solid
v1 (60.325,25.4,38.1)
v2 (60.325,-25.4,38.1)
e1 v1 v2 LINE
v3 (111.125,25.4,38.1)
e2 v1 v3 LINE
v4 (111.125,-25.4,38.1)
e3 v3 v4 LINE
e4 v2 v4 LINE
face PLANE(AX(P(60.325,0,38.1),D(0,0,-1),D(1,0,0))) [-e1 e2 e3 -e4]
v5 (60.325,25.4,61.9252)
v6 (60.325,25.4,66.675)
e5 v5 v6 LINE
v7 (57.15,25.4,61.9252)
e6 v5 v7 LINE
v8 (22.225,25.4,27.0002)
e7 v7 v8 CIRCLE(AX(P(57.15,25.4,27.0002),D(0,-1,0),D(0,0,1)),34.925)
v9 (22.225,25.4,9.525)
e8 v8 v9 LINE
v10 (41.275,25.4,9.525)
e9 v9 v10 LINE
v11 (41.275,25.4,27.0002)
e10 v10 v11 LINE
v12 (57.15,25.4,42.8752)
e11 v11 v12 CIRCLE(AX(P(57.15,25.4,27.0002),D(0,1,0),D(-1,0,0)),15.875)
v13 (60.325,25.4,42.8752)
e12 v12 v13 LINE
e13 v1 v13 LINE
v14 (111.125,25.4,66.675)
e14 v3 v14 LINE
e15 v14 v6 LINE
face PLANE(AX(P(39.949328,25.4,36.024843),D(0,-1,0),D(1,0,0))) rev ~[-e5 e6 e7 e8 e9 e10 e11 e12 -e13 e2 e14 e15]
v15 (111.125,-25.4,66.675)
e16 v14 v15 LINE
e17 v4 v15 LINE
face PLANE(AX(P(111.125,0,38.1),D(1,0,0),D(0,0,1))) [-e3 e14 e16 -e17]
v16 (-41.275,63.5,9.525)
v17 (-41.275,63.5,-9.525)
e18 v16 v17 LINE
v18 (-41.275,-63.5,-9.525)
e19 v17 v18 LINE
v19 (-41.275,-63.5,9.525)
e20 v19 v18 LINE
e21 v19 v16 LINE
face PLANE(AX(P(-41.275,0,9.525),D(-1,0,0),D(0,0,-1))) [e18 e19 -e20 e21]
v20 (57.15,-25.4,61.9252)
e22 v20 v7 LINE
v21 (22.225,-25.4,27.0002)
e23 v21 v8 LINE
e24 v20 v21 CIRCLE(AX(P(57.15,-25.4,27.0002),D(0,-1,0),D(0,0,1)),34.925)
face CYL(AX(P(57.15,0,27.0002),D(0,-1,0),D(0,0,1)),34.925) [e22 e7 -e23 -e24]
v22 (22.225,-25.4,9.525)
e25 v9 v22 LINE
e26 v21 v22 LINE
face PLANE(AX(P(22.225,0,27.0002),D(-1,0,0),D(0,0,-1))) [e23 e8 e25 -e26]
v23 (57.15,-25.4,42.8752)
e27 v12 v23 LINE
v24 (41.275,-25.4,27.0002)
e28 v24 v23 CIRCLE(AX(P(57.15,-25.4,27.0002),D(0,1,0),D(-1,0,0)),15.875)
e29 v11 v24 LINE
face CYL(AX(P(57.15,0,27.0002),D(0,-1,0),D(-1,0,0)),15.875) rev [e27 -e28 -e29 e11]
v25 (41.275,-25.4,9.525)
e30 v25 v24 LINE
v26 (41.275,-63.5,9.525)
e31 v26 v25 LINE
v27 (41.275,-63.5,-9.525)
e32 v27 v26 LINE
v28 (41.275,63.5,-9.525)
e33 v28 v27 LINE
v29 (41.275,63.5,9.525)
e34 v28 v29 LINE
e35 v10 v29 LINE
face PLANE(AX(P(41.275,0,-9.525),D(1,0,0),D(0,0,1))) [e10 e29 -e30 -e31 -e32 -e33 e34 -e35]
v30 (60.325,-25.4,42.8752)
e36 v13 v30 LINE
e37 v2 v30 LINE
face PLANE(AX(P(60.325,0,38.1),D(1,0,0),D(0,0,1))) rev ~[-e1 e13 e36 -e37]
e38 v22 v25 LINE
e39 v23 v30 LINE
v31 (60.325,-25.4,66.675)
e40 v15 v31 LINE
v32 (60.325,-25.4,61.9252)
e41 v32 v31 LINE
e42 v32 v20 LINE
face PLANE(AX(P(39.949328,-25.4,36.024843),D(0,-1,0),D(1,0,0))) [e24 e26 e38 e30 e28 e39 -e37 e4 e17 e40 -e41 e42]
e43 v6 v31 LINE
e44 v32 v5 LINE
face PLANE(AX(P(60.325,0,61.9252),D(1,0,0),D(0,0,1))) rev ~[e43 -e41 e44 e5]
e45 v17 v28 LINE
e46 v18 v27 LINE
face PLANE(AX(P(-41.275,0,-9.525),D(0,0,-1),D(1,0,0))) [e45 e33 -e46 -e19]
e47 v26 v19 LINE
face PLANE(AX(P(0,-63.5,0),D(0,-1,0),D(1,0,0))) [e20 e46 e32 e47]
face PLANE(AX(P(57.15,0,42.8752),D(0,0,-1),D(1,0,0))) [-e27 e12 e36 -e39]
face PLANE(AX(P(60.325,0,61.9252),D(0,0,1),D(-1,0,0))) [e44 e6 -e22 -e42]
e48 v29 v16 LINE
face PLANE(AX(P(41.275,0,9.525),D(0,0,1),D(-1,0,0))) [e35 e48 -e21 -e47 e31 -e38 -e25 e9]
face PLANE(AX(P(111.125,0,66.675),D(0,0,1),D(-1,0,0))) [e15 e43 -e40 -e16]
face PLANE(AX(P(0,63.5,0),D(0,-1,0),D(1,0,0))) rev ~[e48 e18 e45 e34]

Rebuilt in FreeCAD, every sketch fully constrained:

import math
import FreeCAD as App
import Part
import Sketcher
Q = App.Units.Quantity

doc = App.newDocument("Part")
body = doc.addObject("PartDesign::Body", "Body")

# Sketch on XZ plane
sketch1 = body.newObject("Sketcher::SketchObject", "Sketch")
sketch1.AttachmentSupport = (doc.getObject("XZ_Plane"), [""])
sketch1.MapMode = "FlatFace"
sketch1.addGeometry(Part.LineSegment(App.Vector(-41.275, 9.525, 0), App.Vector(-41.275, -9.525, 0)), False)
sketch1.addGeometry(Part.LineSegment(App.Vector(-41.275, -9.525, 0), App.Vector(41.275, -9.525, 0)), False)
sketch1.addGeometry(Part.LineSegment(App.Vector(41.275, -9.525, 0), App.Vector(41.275, 9.525, 0)), False)
sketch1.addGeometry(Part.LineSegment(App.Vector(41.275, 9.525, 0), App.Vector(-41.275, 9.525, 0)), False)
sketch1.addConstraint(Sketcher.Constraint("Coincident", 0, 2, 1, 1))
sketch1.addConstraint(Sketcher.Constraint("Coincident", 1, 2, 2, 1))
sketch1.addConstraint(Sketcher.Constraint("Coincident", 2, 2, 3, 1))
sketch1.addConstraint(Sketcher.Constraint("Coincident", 3, 2, 0, 1))
sketch1.addConstraint(Sketcher.Constraint("Vertical", 0))
sketch1.addConstraint(Sketcher.Constraint("Horizontal", 1))
sketch1.addConstraint(Sketcher.Constraint("Vertical", 2))
sketch1.addConstraint(Sketcher.Constraint("Horizontal", 3))
sketch1.addConstraint(Sketcher.Constraint("Symmetric", 0, 2, 2, 2, -1, 1))
sketch1.addConstraint(Sketcher.Constraint("DistanceX", 1, 1, 1, 2, Q("3.25 in")))
sketch1.addConstraint(Sketcher.Constraint("DistanceY", 0, 2, 0, 1, Q("0.75 in")))
pad1 = body.newObject("PartDesign::Pad", "Pad")
pad1.Profile = sketch1
pad1.Length = Q("5 in")
pad1.Midplane = True

# Sketch on XZ plane
sketch2 = body.newObject("Sketcher::SketchObject", "Sketch001")
sketch2.AttachmentSupport = (doc.getObject("XZ_Plane"), [""])
sketch2.MapMode = "FlatFace"
sketch2.addGeometry(Part.LineSegment(App.Vector(22.225, 27.0002, 0), App.Vector(22.225, 9.525, 0)), False)
sketch2.addGeometry(Part.LineSegment(App.Vector(22.225, 9.525, 0), App.Vector(41.275, 9.525, 0)), False)
sketch2.addGeometry(Part.LineSegment(App.Vector(41.275, 9.525, 0), App.Vector(41.275, 27.0002, 0)), False)
sketch2.addGeometry(Part.ArcOfCircle(Part.Circle(App.Vector(57.15, 27.0002, 0), App.Vector(0, 0, 1), 15.875), math.radians(90), math.radians(180)), False)
sketch2.addGeometry(Part.LineSegment(App.Vector(57.15, 42.8752, 0), App.Vector(60.325, 42.8752, 0)), False)
sketch2.addGeometry(Part.LineSegment(App.Vector(60.325, 42.8752, 0), App.Vector(60.325, 38.1, 0)), False)
sketch2.addGeometry(Part.LineSegment(App.Vector(60.325, 38.1, 0), App.Vector(111.125, 38.1, 0)), False)
sketch2.addGeometry(Part.LineSegment(App.Vector(111.125, 38.1, 0), App.Vector(111.125, 66.675, 0)), False)
sketch2.addGeometry(Part.LineSegment(App.Vector(111.125, 66.675, 0), App.Vector(60.325, 66.675, 0)), False)
sketch2.addGeometry(Part.LineSegment(App.Vector(60.325, 66.675, 0), App.Vector(60.325, 61.9252, 0)), False)
sketch2.addGeometry(Part.LineSegment(App.Vector(60.325, 61.9252, 0), App.Vector(57.15, 61.9252, 0)), False)
sketch2.addGeometry(Part.ArcOfCircle(Part.Circle(App.Vector(57.15, 27.0002, 0), App.Vector(0, 0, 1), 34.925), math.radians(90), math.radians(180)), False)
sketch2.addConstraint(Sketcher.Constraint("Coincident", 0, 2, 1, 1))
sketch2.addConstraint(Sketcher.Constraint("Coincident", 1, 2, 2, 1))
sketch2.addConstraint(Sketcher.Constraint("Tangent", 2, 2, 3, 2))
sketch2.addConstraint(Sketcher.Constraint("Tangent", 3, 1, 4, 1))
sketch2.addConstraint(Sketcher.Constraint("Coincident", 4, 2, 5, 1))
sketch2.addConstraint(Sketcher.Constraint("Coincident", 5, 2, 6, 1))
sketch2.addConstraint(Sketcher.Constraint("Coincident", 6, 2, 7, 1))
sketch2.addConstraint(Sketcher.Constraint("Coincident", 7, 2, 8, 1))
sketch2.addConstraint(Sketcher.Constraint("Coincident", 8, 2, 9, 1))
sketch2.addConstraint(Sketcher.Constraint("Coincident", 9, 2, 10, 1))
sketch2.addConstraint(Sketcher.Constraint("Tangent", 10, 2, 11, 1))
sketch2.addConstraint(Sketcher.Constraint("Tangent", 11, 2, 0, 1))
sketch2.addConstraint(Sketcher.Constraint("Vertical", 0))
sketch2.addConstraint(Sketcher.Constraint("Horizontal", 1))
sketch2.addConstraint(Sketcher.Constraint("Vertical", 2))
sketch2.addConstraint(Sketcher.Constraint("Horizontal", 4))
sketch2.addConstraint(Sketcher.Constraint("Vertical", 5))
sketch2.addConstraint(Sketcher.Constraint("Horizontal", 6))
sketch2.addConstraint(Sketcher.Constraint("Vertical", 7))
sketch2.addConstraint(Sketcher.Constraint("Horizontal", 8))
sketch2.addConstraint(Sketcher.Constraint("Vertical", 9))
sketch2.addConstraint(Sketcher.Constraint("Horizontal", 10))
sketch2.addConstraint(Sketcher.Constraint("Coincident", 11, 3, 3, 3))
sketch2.addConstraint(Sketcher.Constraint("Vertical", 5, 2, 8, 2))
sketch2.addConstraint(Sketcher.Constraint("DistanceX", 6, 1, 6, 2, Q("2 in")))
sketch2.addConstraint(Sketcher.Constraint("Radius", 3, Q("0.625 in")))
sketch2.addConstraint(Sketcher.Constraint("Radius", 11, Q("1.375 in")))
sketch2.addConstraint(Sketcher.Constraint("DistanceY", -1, 1, 5, 2, Q("1.5 in")))
sketch2.addConstraint(Sketcher.Constraint("DistanceX", 4, 1, 4, 2, Q("0.125 in")))
sketch2.addConstraint(Sketcher.Constraint("DistanceY", 0, 2, 0, 1, Q("0.688 in")))
sketch2.addConstraint(Sketcher.Constraint("DistanceY", 5, 2, 5, 1, Q("0.188 in")))
sketch2.addConstraint(Sketcher.Constraint("DistanceY", 7, 1, 7, 2, Q("1.125 in")))
sketch2.addConstraint(Sketcher.Constraint("DistanceX", -1, 1, 3, 3, Q("2.25 in")))
pad2 = body.newObject("PartDesign::Pad", "Pad001")
pad2.Profile = sketch2
pad2.Length = Q("2 in")
pad2.Midplane = True

doc.recompute()
